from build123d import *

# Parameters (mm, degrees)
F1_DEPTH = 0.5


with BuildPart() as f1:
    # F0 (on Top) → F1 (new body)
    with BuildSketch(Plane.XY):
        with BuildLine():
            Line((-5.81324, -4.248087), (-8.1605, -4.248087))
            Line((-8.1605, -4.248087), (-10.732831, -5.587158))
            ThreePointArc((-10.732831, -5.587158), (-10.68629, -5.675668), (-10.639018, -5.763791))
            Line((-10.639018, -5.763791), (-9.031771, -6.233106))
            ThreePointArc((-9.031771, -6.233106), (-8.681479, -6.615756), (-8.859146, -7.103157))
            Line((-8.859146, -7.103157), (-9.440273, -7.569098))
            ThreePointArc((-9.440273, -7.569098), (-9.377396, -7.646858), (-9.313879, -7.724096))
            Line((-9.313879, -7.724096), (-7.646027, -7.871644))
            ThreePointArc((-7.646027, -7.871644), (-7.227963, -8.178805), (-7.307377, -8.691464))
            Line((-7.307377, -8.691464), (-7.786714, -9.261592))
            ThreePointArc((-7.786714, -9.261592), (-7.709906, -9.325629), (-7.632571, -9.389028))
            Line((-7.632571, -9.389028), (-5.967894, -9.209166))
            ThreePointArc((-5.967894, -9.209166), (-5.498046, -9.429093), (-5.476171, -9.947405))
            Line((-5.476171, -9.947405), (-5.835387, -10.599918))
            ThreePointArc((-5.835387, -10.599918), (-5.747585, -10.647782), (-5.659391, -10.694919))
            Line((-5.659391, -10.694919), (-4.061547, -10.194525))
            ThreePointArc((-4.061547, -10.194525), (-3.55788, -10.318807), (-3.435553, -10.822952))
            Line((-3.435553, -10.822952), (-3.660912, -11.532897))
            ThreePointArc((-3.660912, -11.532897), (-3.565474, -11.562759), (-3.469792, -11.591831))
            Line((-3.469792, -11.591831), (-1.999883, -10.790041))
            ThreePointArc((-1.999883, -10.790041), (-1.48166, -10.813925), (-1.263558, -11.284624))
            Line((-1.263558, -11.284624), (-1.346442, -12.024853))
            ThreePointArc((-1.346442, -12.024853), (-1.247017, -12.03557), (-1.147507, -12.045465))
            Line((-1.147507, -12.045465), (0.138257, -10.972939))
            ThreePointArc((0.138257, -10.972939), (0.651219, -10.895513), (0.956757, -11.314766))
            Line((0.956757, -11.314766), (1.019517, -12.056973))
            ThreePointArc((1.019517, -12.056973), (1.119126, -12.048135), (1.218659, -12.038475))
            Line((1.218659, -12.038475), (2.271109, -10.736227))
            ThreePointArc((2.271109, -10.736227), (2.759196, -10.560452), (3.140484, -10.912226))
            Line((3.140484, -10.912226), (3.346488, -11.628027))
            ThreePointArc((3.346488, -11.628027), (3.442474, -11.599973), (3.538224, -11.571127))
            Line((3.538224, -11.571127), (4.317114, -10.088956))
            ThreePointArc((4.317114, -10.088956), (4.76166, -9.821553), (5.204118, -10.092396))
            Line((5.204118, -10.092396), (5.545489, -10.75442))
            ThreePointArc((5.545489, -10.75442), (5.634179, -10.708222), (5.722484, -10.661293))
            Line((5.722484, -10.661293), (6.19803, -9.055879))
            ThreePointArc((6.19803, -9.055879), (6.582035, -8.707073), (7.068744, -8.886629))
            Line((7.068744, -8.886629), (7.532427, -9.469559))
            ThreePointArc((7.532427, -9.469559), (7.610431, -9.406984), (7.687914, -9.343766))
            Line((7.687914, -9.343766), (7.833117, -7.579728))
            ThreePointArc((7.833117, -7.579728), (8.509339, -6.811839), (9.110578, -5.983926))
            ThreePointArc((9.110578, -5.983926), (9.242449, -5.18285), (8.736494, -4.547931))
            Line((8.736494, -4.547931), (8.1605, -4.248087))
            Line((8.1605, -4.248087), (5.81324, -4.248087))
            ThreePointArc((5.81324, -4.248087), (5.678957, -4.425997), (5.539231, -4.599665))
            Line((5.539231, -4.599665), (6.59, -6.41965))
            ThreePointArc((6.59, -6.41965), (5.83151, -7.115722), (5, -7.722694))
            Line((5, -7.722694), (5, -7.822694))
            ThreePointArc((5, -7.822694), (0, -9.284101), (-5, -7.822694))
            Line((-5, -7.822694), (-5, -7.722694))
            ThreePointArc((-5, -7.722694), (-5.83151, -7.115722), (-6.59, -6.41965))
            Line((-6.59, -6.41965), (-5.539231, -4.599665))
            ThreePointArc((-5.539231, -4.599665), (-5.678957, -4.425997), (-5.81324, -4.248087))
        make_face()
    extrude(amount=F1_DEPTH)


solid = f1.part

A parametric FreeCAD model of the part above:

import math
import FreeCAD as App
import Part
import Sketcher

V = App.Vector
Q = App.Units.Quantity

doc = App.newDocument("Part")
params = doc.addObject("Spreadsheet::Sheet", "Params")
for row, (alias, value) in enumerate([
    ("sketch1_radius", "0.999999 mm"),
    ("sketch1_radius2", "0.5 mm"),
    ("sketch1_radius3", "0.500001 mm"),
    ("sketch1_radius4", "0.500001 mm"),
    ("sketch1_radius5", "0.5 mm"),
    ("pad1_length", "0.5 mm"),
], start=1):
    params.set(f"A{row}", alias)
    params.set(f"B{row}", "=" + value)
    params.setAlias(f"B{row}", alias)

body = doc.addObject("PartDesign::Body", "Body")

# Sketch on XY plane
sketch1 = body.newObject("Sketcher::SketchObject", "Sketch")
sketch1.AttachmentSupport = (doc.getObject("XY_Plane"), [""])
sketch1.MapMode = "FlatFace"
sketch1.addGeometry(Part.LineSegment(V(-5.81324, -4.248087, 0), V(-8.1605, -4.248087, 0)), False)
sketch1.addGeometry(Part.LineSegment(V(-8.1605, -4.248087, 0), V(-10.732831, -5.587158, 0)), False)
sketch1.addGeometry(Part.ArcOfCircle(Part.Circle(V(-0.008512, -0.004507, 0), V(0, 0, 1), 12.090368), math.radians(-152.500318), math.radians(-151.552514)), False)
sketch1.addGeometry(Part.LineSegment(V(-10.639018, -5.763791, 0), V(-9.031771, -6.233106, 0)), False)
sketch1.addGeometry(Part.ArcOfCircle(Part.Circle(V(-9.171919, -6.713063, 0), V(0, 0, 1), 0.5), math.radians(-51.277714), math.radians(73.722102)), False)
sketch1.addGeometry(Part.LineSegment(V(-8.859146, -7.103157, 0), V(-9.440273, -7.569098, 0)), False)
sketch1.addGeometry(Part.ArcOfCircle(Part.Circle(V(0.006509, 0.005301, 0), V(0, 0, 1), 12.108394), math.radians(-141.277476), math.radians(-140.331086)), False)
sketch1.addGeometry(Part.LineSegment(V(-9.313879, -7.724096, 0), V(-7.646027, -7.871644, 0)), False)
sketch1.addGeometry(Part.ArcOfCircle(Part.Circle(V(-7.690088, -8.369699, 0), V(0, 0, 1), 0.500001), math.radians(-40.055452), math.radians(84.944385)), False)
sketch1.addGeometry(Part.LineSegment(V(-7.307377, -8.691464, 0), V(-7.786714, -9.261592, 0)), False)
sketch1.addGeometry(Part.ArcOfCircle(Part.Circle(V(-0.009808, -0.011806, 0), V(0, 0, 1), 12.084652), math.radians(-130.055986), math.radians(-129.107734)), False)
sketch1.addGeometry(Part.LineSegment(V(-7.632571, -9.389028, 0), V(-5.967894, -9.209166, 0)), False)
sketch1.addGeometry(Part.ArcOfCircle(Part.Circle(V(-5.914185, -9.706273, 0), V(0, 0, 1), 0.500001), math.radians(-28.83328), math.radians(96.166513)), False)
sketch1.addGeometry(Part.LineSegment(V(-5.476171, -9.947405, 0), V(-5.835387, -10.599918, 0)), False)
sketch1.addGeometry(Part.ArcOfCircle(Part.Circle(V(0.003514, 0.006531, 0), V(0, 0, 1), 12.107416), math.radians(-118.832993), math.radians(-117.886527)), False)
sketch1.addGeometry(Part.LineSegment(V(-5.659391, -10.694919, 0), V(-4.061547, -10.194525, 0)), False)
sketch1.addGeometry(Part.ArcOfCircle(Part.Circle(V(-3.912118, -10.671674, 0), V(0, 0, 1), 0.5), math.radians(-17.611238), math.radians(107.388983)), False)
sketch1.addGeometry(Part.LineSegment(V(-3.435553, -10.822952, 0), V(-3.660912, -11.532897, 0)), False)
sketch1.addGeometry(Part.ArcOfCircle(Part.Circle(V(-0.001526, -0.005056, 0), V(0, 0, 1), 12.094719), math.radians(-107.611466), math.radians(-106.664003)), False)
sketch1.addGeometry(Part.LineSegment(V(-3.469792, -11.591831, 0), V(-1.999883, -10.790041, 0)), False)
sketch1.addGeometry(Part.ArcOfCircle(Part.Circle(V(-1.760451, -11.228984, 0), V(0, 0, 1), 0.499999), math.radians(-6.389103), math.radians(118.611285)), False)
sketch1.addGeometry(Part.LineSegment(V(-1.263558, -11.284624, 0), V(-1.346442, -12.024853, 0)), False)
sketch1.addGeometry(Part.ArcOfCircle(Part.Circle(V(0.000125, 0.001122, 0), V(0, 0, 1), 12.101129), math.radians(-96.388887), math.radians(-95.441927)), False)
sketch1.addGeometry(Part.LineSegment(V(-1.147507, -12.045465, 0), V(0.138257, -10.972939, 0)), False)
sketch1.addGeometry(Part.ArcOfCircle(Part.Circle(V(0.458535, -11.356894, 0), V(0, 0, 1), 0.5), math.radians(4.833284), math.radians(129.833335)), False)
sketch1.addGeometry(Part.LineSegment(V(0.956757, -11.314766, 0), V(1.019517, -12.056973, 0)), False)
sketch1.addGeometry(Part.ArcOfCircle(Part.Circle(V(-0.001293, 0.013844, 0), V(0, 0, 1), 12.113904), math.radians(-85.166089), math.radians(-84.220131)), False)
sketch1.addGeometry(Part.LineSegment(V(1.218659, -12.038475, 0), V(2.271109, -10.736227, 0)), False)
sketch1.addGeometry(Part.ArcOfCircle(Part.Circle(V(2.659987, -11.050511, 0), V(0, 0, 1), 0.5), math.radians(16.055595), math.radians(141.055472)), False)
sketch1.addGeometry(Part.LineSegment(V(3.140484, -10.912226, 0), V(3.346488, -11.628027, 0)), False)
sketch1.addGeometry(Part.ArcOfCircle(Part.Circle(V(-0.000185, 0.000758, 0), V(0, 0, 1), 12.10078), math.radians(-73.944597), math.radians(-72.997606)), False)
sketch1.addGeometry(Part.LineSegment(V(3.538224, -11.571127, 0), V(4.317114, -10.088956, 0)), False)
sketch1.addGeometry(Part.ArcOfCircle(Part.Circle(V(4.759721, -10.32155, 0), V(0, 0, 1), 0.5), math.radians(27.277912), math.radians(152.277678)), False)
sketch1.addGeometry(Part.LineSegment(V(5.204118, -10.092396, 0), V(5.545489, -10.75442, 0)), False)
sketch1.addGeometry(Part.ArcOfCircle(Part.Circle(V(-0.001856, 0.003494, 0), V(0, 0, 1), 12.103956), math.radians(-62.721993), math.radians(-61.775256)), False)
sketch1.addGeometry(Part.LineSegment(V(5.722484, -10.661293, 0), V(6.19803, -9.055879, 0)), False)
sketch1.addGeometry(Part.ArcOfCircle(Part.Circle(V(6.67744, -9.197887, 0), V(0, 0, 1), 0.5), math.radians(38.500032), math.radians(163.500011)), False)
sketch1.addGeometry(Part.LineSegment(V(7.068744, -8.886629, 0), V(7.532427, -9.469559, 0)), False)
sketch1.addGeometry(Part.ArcOfCircle(Part.Circle(V(0.010247, -0.012743, 0), V(0, 0, 1), 12.083648), math.radians(-51.500412), math.radians(-50.552081)), False)
sketch1.addGeometry(Part.LineSegment(V(7.687914, -9.343766, 0), V(7.833117, -7.579728, 0)), False)
sketch1.addGeometry(Part.ArcOfCircle(Part.Circle(V(0.000005, -0.000003, 0), V(0, 0, 1), 10.899994), math.radians(-44.058143), math.radians(-33.297342)), False)
sketch1.addGeometry(Part.ArcOfCircle(Part.Circle(V(8.274746, -5.434941, 0), V(0, 0, 1), 0.999999), math.radians(-33.297402), math.radians(62.500042)), False)
sketch1.addGeometry(Part.LineSegment(V(8.736494, -4.547931, 0), V(8.1605, -4.248087, 0)), False)
sketch1.addGeometry(Part.LineSegment(V(8.1605, -4.248087, 0), V(5.81324, -4.248087, 0)), False)
sketch1.addGeometry(Part.ArcOfCircle(Part.Circle(V(0.000201, -0.00015, 0), V(0, 0, 1), 7.199749), math.radians(-39.705652), math.radians(-36.157841)), False)
sketch1.addGeometry(Part.LineSegment(V(5.539231, -4.599665, 0), V(6.59, -6.41965, 0)), False)
sketch1.addGeometry(Part.ArcOfCircle(Part.Circle(V(0.000023, -0.000027, 0), V(0, 0, 1), 9.199965), math.radians(-57.079296), math.radians(-44.249785)), False)
sketch1.addGeometry(Part.LineSegment(V(5, -7.722694, 0), V(5, -7.822694, 0)), False)
sketch1.addGeometry(Part.ArcOfCircle(Part.Circle(V(0, 0.000003, 0), V(0, 0, 1), 9.284104), math.radians(-122.585319), math.radians(-57.414681)), False)
sketch1.addGeometry(Part.LineSegment(V(-5, -7.822694, 0), V(-5, -7.722694, 0)), False)
sketch1.addGeometry(Part.ArcOfCircle(Part.Circle(V(-0.000023, -0.000027, 0), V(0, 0, 1), 9.199965), math.radians(-135.750215), math.radians(-122.920704)), False)
sketch1.addGeometry(Part.LineSegment(V(-6.59, -6.41965, 0), V(-5.539231, -4.599665, 0)), False)
sketch1.addGeometry(Part.ArcOfCircle(Part.Circle(V(-0.000201, -0.00015, 0), V(0, 0, 1), 7.199749), math.radians(-143.842159), math.radians(-140.294348)), False)
sketch1.addConstraint(Sketcher.Constraint("Coincident", 0, 2, 1, 1))
sketch1.addConstraint(Sketcher.Constraint("Coincident", 1, 2, 2, 1))
sketch1.addConstraint(Sketcher.Constraint("Coincident", 2, 2, 3, 1))
sketch1.addConstraint(Sketcher.Constraint("Coincident", 3, 2, 4, 2))
sketch1.addConstraint(Sketcher.Constraint("Coincident", 4, 1, 5, 1))
sketch1.addConstraint(Sketcher.Constraint("Coincident", 5, 2, 6, 1))
sketch1.addConstraint(Sketcher.Constraint("Coincident", 6, 2, 7, 1))
sketch1.addConstraint(Sketcher.Constraint("Coincident", 7, 2, 8, 2))
sketch1.addConstraint(Sketcher.Constraint("Coincident", 8, 1, 9, 1))
sketch1.addConstraint(Sketcher.Constraint("Coincident", 9, 2, 10, 1))
sketch1.addConstraint(Sketcher.Constraint("Coincident", 10, 2, 11, 1))
sketch1.addConstraint(Sketcher.Constraint("Coincident", 11, 2, 12, 2))
sketch1.addConstraint(Sketcher.Constraint("Coincident", 12, 1, 13, 1))
sketch1.addConstraint(Sketcher.Constraint("Coincident", 13, 2, 14, 1))
sketch1.addConstraint(Sketcher.Constraint("Coincident", 14, 2, 15, 1))
sketch1.addConstraint(Sketcher.Constraint("Coincident", 15, 2, 16, 2))
sketch1.addConstraint(Sketcher.Constraint("Coincident", 16, 1, 17, 1))
sketch1.addConstraint(Sketcher.Constraint("Coincident", 17, 2, 18, 1))
sketch1.addConstraint(Sketcher.Constraint("Coincident", 18, 2, 19, 1))
sketch1.addConstraint(Sketcher.Constraint("Coincident", 19, 2, 20, 2))
sketch1.addConstraint(Sketcher.Constraint("Coincident", 20, 1, 21, 1))
sketch1.addConstraint(Sketcher.Constraint("Coincident", 21, 2, 22, 1))
sketch1.addConstraint(Sketcher.Constraint("Coincident", 22, 2, 23, 1))
sketch1.addConstraint(Sketcher.Constraint("Coincident", 23, 2, 24, 2))
sketch1.addConstraint(Sketcher.Constraint("Coincident", 24, 1, 25, 1))
sketch1.addConstraint(Sketcher.Constraint("Coincident", 25, 2, 26, 1))
sketch1.addConstraint(Sketcher.Constraint("Coincident", 26, 2, 27, 1))
sketch1.addConstraint(Sketcher.Constraint("Coincident", 27, 2, 28, 2))
sketch1.addConstraint(Sketcher.Constraint("Coincident", 28, 1, 29, 1))
sketch1.addConstraint(Sketcher.Constraint("Coincident", 29, 2, 30, 1))
sketch1.addConstraint(Sketcher.Constraint("Coincident", 30, 2, 31, 1))
sketch1.addConstraint(Sketcher.Constraint("Coincident", 31, 2, 32, 2))
sketch1.addConstraint(Sketcher.Constraint("Coincident", 32, 1, 33, 1))
sketch1.addConstraint(Sketcher.Constraint("Coincident", 33, 2, 34, 1))
sketch1.addConstraint(Sketcher.Constraint("Coincident", 34, 2, 35, 1))
sketch1.addConstraint(Sketcher.Constraint("Coincident", 35, 2, 36, 2))
sketch1.addConstraint(Sketcher.Constraint("Coincident", 36, 1, 37, 1))
sketch1.addConstraint(Sketcher.Constraint("Coincident", 37, 2, 38, 1))
sketch1.addConstraint(Sketcher.Constraint("Coincident", 38, 2, 39, 1))
sketch1.addConstraint(Sketcher.Constraint("Coincident", 39, 2, 40, 1))
sketch1.addConstraint(Sketcher.Constraint("Coincident", 40, 2, 41, 1))
sketch1.addConstraint(Sketcher.Constraint("Coincident", 41, 2, 42, 1))
sketch1.addConstraint(Sketcher.Constraint("Coincident", 42, 2, 43, 1))
sketch1.addConstraint(Sketcher.Constraint("Coincident", 43, 2, 44, 2))
sketch1.addConstraint(Sketcher.Constraint("Coincident", 44, 1, 45, 1))
sketch1.addConstraint(Sketcher.Constraint("Coincident", 45, 2, 46, 2))
sketch1.addConstraint(Sketcher.Constraint("Coincident", 46, 1, 47, 1))
sketch1.addConstraint(Sketcher.Constraint("Coincident", 47, 2, 48, 2))
sketch1.addConstraint(Sketcher.Constraint("Coincident", 48, 1, 49, 1))
sketch1.addConstraint(Sketcher.Constraint("Coincident", 49, 2, 50, 2))
sketch1.addConstraint(Sketcher.Constraint("Coincident", 50, 1, 51, 1))
sketch1.addConstraint(Sketcher.Constraint("Coincident", 51, 2, 52, 2))
sketch1.addConstraint(Sketcher.Constraint("Coincident", 52, 1, 0, 1))
sketch1.addConstraint(Sketcher.Constraint("Horizontal", 0))
sketch1.addConstraint(Sketcher.Constraint("Horizontal", 43))
sketch1.addConstraint(Sketcher.Constraint("Vertical", 47))
sketch1.addConstraint(Sketcher.Constraint("Vertical", 49))
sketch1.addConstraint(Sketcher.Constraint("Coincident", 40, 3, -1, 1))
sketch1.addConstraint(Sketcher.Constraint("Coincident", 48, 3, -1, 1))
sketch1.addConstraint(Sketcher.Constraint("Radius", 41, Q("0.999999 mm")))
sketch1.addConstraint(Sketcher.Constraint("Radius", 4, Q("0.5 mm")))
sketch1.addConstraint(Sketcher.Constraint("Radius", 8, Q("0.500001 mm")))
sketch1.addConstraint(Sketcher.Constraint("Radius", 12, Q("0.500001 mm")))
sketch1.addConstraint(Sketcher.Constraint("Radius", 16, Q("0.5 mm")))
sketch1.addConstraint(Sketcher.Constraint("Radius", 20, Q("0.499999 mm")))
sketch1.addConstraint(Sketcher.Constraint("Radius", 24, Q("0.5 mm")))
sketch1.addConstraint(Sketcher.Constraint("Radius", 28, Q("0.5 mm")))
sketch1.addConstraint(Sketcher.Constraint("Radius", 32, Q("0.5 mm")))
sketch1.addConstraint(Sketcher.Constraint("Radius", 36, Q("0.5 mm")))
sketch1.addConstraint(Sketcher.Constraint("DistanceY", 47, 2, 47, 1, Q("0.1 mm")))
sketch1.addConstraint(Sketcher.Constraint("DistanceY", 49, 1, 49, 2, Q("0.1 mm")))
sketch1.addConstraint(Sketcher.Constraint("DistanceX", -1, 1, 46, 1, Q("5 mm")))
sketch1.addConstraint(Sketcher.Constraint("DistanceX", 48, 1, -1, 1, Q("5 mm")))
sketch1.addConstraint(Sketcher.Constraint("Distance", 1, Q("2.9 mm")))
sketch1.addConstraint(Sketcher.Constraint("DistanceX", -1, 1, 45, 2, Q("6.59 mm")))
sketch1.addConstraint(Sketcher.Constraint("DistanceX", 50, 1, -1, 1, Q("6.59 mm")))
sketch1.addConstraint(Sketcher.Constraint("Radius", 2, Q("12.090368 mm")))
sketch1.addConstraint(Sketcher.Constraint("Radius", 10, Q("12.084652 mm")))
sketch1.addConstraint(Sketcher.Constraint("Radius", 18, Q("12.094719 mm")))
sketch1.addConstraint(Sketcher.Constraint("Radius", 22, Q("12.101129 mm")))
sketch1.addConstraint(Sketcher.Constraint("Radius", 30, Q("12.10078 mm")))
sketch1.addConstraint(Sketcher.Constraint("Radius", 38, Q("12.083648 mm")))
sketch1.addConstraint(Sketcher.Constraint("Radius", 44, Q("7.199749 mm")))
sketch1.addConstraint(Sketcher.Constraint("Radius", 52, Q("7.199749 mm")))
sketch1.addConstraint(Sketcher.Constraint("Radius", 6, Q("12.108394 mm")))
sketch1.addConstraint(Sketcher.Constraint("Radius", 14, Q("12.107416 mm")))
sketch1.addConstraint(Sketcher.Constraint("Radius", 26, Q("12.113904 mm")))
sketch1.addConstraint(Sketcher.Constraint("Radius", 34, Q("12.103956 mm")))
sketch1.addConstraint(Sketcher.Constraint("Radius", 40, Q("10.899994 mm")))
sketch1.addConstraint(Sketcher.Constraint("Radius", 46, Q("9.199965 mm")))
sketch1.addConstraint(Sketcher.Constraint("Radius", 48, Q("9.284104 mm")))
sketch1.addConstraint(Sketcher.Constraint("Radius", 50, Q("9.199965 mm")))
sketch1.addConstraint(Sketcher.Constraint("DistanceX", 0, 2, 0, 1, Q("2.34726 mm")))
sketch1.addConstraint(Sketcher.Constraint("DistanceX", 43, 2, 43, 1, Q("2.34726 mm")))
sketch1.addConstraint(Sketcher.Constraint("DistanceY", -1, 1, 6, 3, Q("0.005301 mm")))
sketch1.addConstraint(Sketcher.Constraint("DistanceY", 8, 3, -1, 1, Q("8.369699 mm")))
sketch1.addConstraint(Sketcher.Constraint("DistanceX", -1, 1, 44, 3, Q("0.000201 mm")))
sketch1.addConstraint(Sketcher.Constraint("DistanceX", 52, 3, -1, 1, Q("0.000201 mm")))
sketch1.addConstraint(Sketcher.Constraint("DistanceX", 0, 2, -1, 1, Q("8.1605 mm")))
sketch1.addConstraint(Sketcher.Constraint("DistanceY", 5, 2, -1, 1, Q("7.569098 mm")))
sketch1.addConstraint(Sketcher.Constraint("DistanceX", -1, 1, 42, 2, Q("8.1605 mm")))
sketch1.addConstraint(Sketcher.Constraint("DistanceX", 4, 3, -1, 1, Q("9.171919 mm")))
sketch1.addConstraint(Sketcher.Constraint("DistanceX", -1, 1, 6, 3, Q("0.006509 mm")))
sketch1.addConstraint(Sketcher.Constraint("DistanceX", 8, 3, -1, 1, Q("7.690088 mm")))
sketch1.addConstraint(Sketcher.Constraint("DistanceY", -1, 1, 14, 3, Q("0.006531 mm")))
sketch1.addConstraint(Sketcher.Constraint("DistanceX", 16, 3, -1, 1, Q("3.912118 mm")))
sketch1.addConstraint(Sketcher.Constraint("DistanceX", 20, 3, -1, 1, Q("1.760451 mm")))
sketch1.addConstraint(Sketcher.Constraint("DistanceY", -1, 1, 22, 3, Q("0.001122 mm")))
sketch1.addConstraint(Sketcher.Constraint("DistanceY", 28, 3, -1, 1, Q("11.050511 mm")))
sketch1.addConstraint(Sketcher.Constraint("DistanceY", -1, 1, 30, 3, Q("0.000758 mm")))
sketch1.addConstraint(Sketcher.Constraint("DistanceX", -1, 1, 32, 3, Q("4.759721 mm")))
sketch1.addConstraint(Sketcher.Constraint("DistanceY", 32, 3, -1, 1, Q("10.32155 mm")))
sketch1.addConstraint(Sketcher.Constraint("DistanceX", -1, 1, 36, 3, Q("6.67744 mm")))
sketch1.addConstraint(Sketcher.Constraint("DistanceY", 41, 3, -1, 1, Q("5.434941 mm")))
sketch1.addConstraint(Sketcher.Constraint("DistanceY", 44, 3, -1, 1, Q("0.00015 mm")))
sketch1.addConstraint(Sketcher.Constraint("DistanceY", 52, 3, -1, 1, Q("0.00015 mm")))
sketch1.addConstraint(Sketcher.Constraint("DistanceX", 1, 2, -1, 1, Q("10.732831 mm")))
sketch1.addConstraint(Sketcher.Constraint("DistanceY", 2, 2, -1, 1, Q("5.763791 mm")))
sketch1.addConstraint(Sketcher.Constraint("DistanceX", 3, 2, -1, 1, Q("9.031771 mm")))
sketch1.addConstraint(Sketcher.Constraint("DistanceX", 6, 2, -1, 1, Q("9.313879 mm")))
sketch1.addConstraint(Sketcher.Constraint("DistanceX", 10, 2, -1, 1, Q("7.632571 mm")))
sketch1.addConstraint(Sketcher.Constraint("DistanceX", 12, 1, -1, 1, Q("5.476171 mm")))
sketch1.addConstraint(Sketcher.Constraint("DistanceY", 13, 2, -1, 1, Q("10.599918 mm")))
sketch1.addConstraint(Sketcher.Constraint("DistanceX", 14, 2, -1, 1, Q("5.659391 mm")))
sketch1.addConstraint(Sketcher.Constraint("DistanceY", 14, 2, -1, 1, Q("10.694919 mm")))
sketch1.addConstraint(Sketcher.Constraint("DistanceX", 18, 2, -1, 1, Q("3.469792 mm")))
sketch1.addConstraint(Sketcher.Constraint("DistanceY", 18, 2, -1, 1, Q("11.591831 mm")))
sketch1.addConstraint(Sketcher.Constraint("DistanceY", 19, 2, -1, 1, Q("10.790041 mm")))
sketch1.addConstraint(Sketcher.Constraint("DistanceX", 21, 2, -1, 1, Q("1.346442 mm")))
sketch1.addConstraint(Sketcher.Constraint("DistanceY", 23, 2, -1, 1, Q("10.972939 mm")))
sketch1.addConstraint(Sketcher.Constraint("DistanceX", -1, 1, 26, 2, Q("1.218659 mm")))
sketch1.addConstraint(Sketcher.Constraint("DistanceX", -1, 1, 27, 2, Q("2.271109 mm")))
sketch1.addConstraint(Sketcher.Constraint("DistanceX", -1, 1, 33, 2, Q("5.545489 mm")))
sketch1.addConstraint(Sketcher.Constraint("DistanceY", 33, 2, -1, 1, Q("10.75442 mm")))
sketch1.addConstraint(Sketcher.Constraint("DistanceX", -1, 1, 35, 2, Q("6.19803 mm")))
sketch1.addConstraint(Sketcher.Constraint("DistanceY", 35, 2, -1, 1, Q("9.055879 mm")))
sketch1.addConstraint(Sketcher.Constraint("DistanceY", 36, 1, -1, 1, Q("8.886629 mm")))
sketch1.addConstraint(Sketcher.Constraint("DistanceY", 37, 2, -1, 1, Q("9.469559 mm")))
sketch1.addConstraint(Sketcher.Constraint("DistanceY", 39, 2, -1, 1, Q("7.579728 mm")))
sketch1.addConstraint(Sketcher.Constraint("DistanceX", -1, 1, 40, 2, Q("9.110578 mm")))
sketch1.addConstraint(Sketcher.Constraint("DistanceY", 41, 2, -1, 1, Q("4.547931 mm")))
sketch1.addConstraint(Sketcher.Constraint("DistanceX", -1, 1, 44, 1, Q("5.539231 mm")))
sketch1.addConstraint(Sketcher.Constraint("DistanceY", 45, 2, -1, 1, Q("6.41965 mm")))
sketch1.addConstraint(Sketcher.Constraint("DistanceY", 50, 1, -1, 1, Q("6.41965 mm")))
sketch1.addConstraint(Sketcher.Constraint("DistanceX", 51, 2, -1, 1, Q("5.539231 mm")))
sketch1.addConstraint(Sketcher.Constraint("Distance", 3, Q("1.674365 mm")))
sketch1.addConstraint(Sketcher.Constraint("Distance", 5, Q("0.744855 mm")))
sketch1.addConstraint(Sketcher.Constraint("Distance", 7, Q("1.674366 mm")))
sketch1.addConstraint(Sketcher.Constraint("Distance", 9, Q("0.744856 mm")))
sketch1.addConstraint(Sketcher.Constraint("Distance", 11, Q("1.674366 mm")))
sketch1.addConstraint(Sketcher.Constraint("Distance", 13, Q("0.744855 mm")))
sketch1.addConstraint(Sketcher.Constraint("Distance", 15, Q("1.674365 mm")))
sketch1.addConstraint(Sketcher.Constraint("Distance", 17, Q("0.744855 mm")))
sketch1.addConstraint(Sketcher.Constraint("Distance", 19, Q("1.674365 mm")))
sketch1.addConstraint(Sketcher.Constraint("Distance", 21, Q("0.744855 mm")))
sketch1.addConstraint(Sketcher.Constraint("Distance", 23, Q("1.674366 mm")))
sketch1.addConstraint(Sketcher.Constraint("Distance", 25, Q("0.744856 mm")))
sketch1.addConstraint(Sketcher.Constraint("Distance", 27, Q("1.674366 mm")))
sketch1.addConstraint(Sketcher.Constraint("Distance", 29, Q("0.744855 mm")))
sketch1.addConstraint(Sketcher.Constraint("Distance", 31, Q("1.674366 mm")))
sketch1.addConstraint(Sketcher.Constraint("Distance", 33, Q("0.744856 mm")))
sketch1.addConstraint(Sketcher.Constraint("Distance", 35, Q("1.674365 mm")))
sketch1.addConstraint(Sketcher.Constraint("Distance", 37, Q("0.744855 mm")))
sketch1.addConstraint(Sketcher.Constraint("Distance", 39, Q("1.770004 mm")))
sketch1.addConstraint(Sketcher.Constraint("DistanceX", 2, 3, -1, 1, Q("0.008512 mm")))
sketch1.addConstraint(Sketcher.Constraint("DistanceX", 10, 3, -1, 1, Q("0.009808 mm")))
sketch1.addConstraint(Sketcher.Constraint("DistanceY", 10, 3, -1, 1, Q("0.011806 mm")))
sketch1.addConstraint(Sketcher.Constraint("DistanceX", 12, 3, -1, 1, Q("5.914185 mm")))
sketch1.addConstraint(Sketcher.Constraint("DistanceY", 16, 3, -1, 1, Q("10.671674 mm")))
sketch1.addConstraint(Sketcher.Constraint("DistanceX", 18, 3, -1, 1, Q("0.001526 mm")))
sketch1.addConstraint(Sketcher.Constraint("DistanceX", -1, 1, 22, 3, Q("0.000125 mm")))
sketch1.addConstraint(Sketcher.Constraint("DistanceX", -1, 1, 24, 3, Q("0.458535 mm")))
sketch1.addConstraint(Sketcher.Constraint("DistanceY", 24, 3, -1, 1, Q("11.356894 mm")))
sketch1.addConstraint(Sketcher.Constraint("DistanceX", 26, 3, -1, 1, Q("0.001293 mm")))
sketch1.addConstraint(Sketcher.Constraint("DistanceY", -1, 1, 26, 3, Q("0.013844 mm")))
sketch1.addConstraint(Sketcher.Constraint("DistanceX", 30, 3, -1, 1, Q("0.000185 mm")))
sketch1.addConstraint(Sketcher.Constraint("DistanceX", 34, 3, -1, 1, Q("0.001856 mm")))
sketch1.addConstraint(Sketcher.Constraint("DistanceX", -1, 1, 38, 3, Q("0.010247 mm")))
sketch1.addConstraint(Sketcher.Constraint("DistanceX", 9, 2, -1, 1, Q("7.786714 mm")))
sketch1.addConstraint(Sketcher.Constraint("DistanceX", 17, 2, -1, 1, Q("3.660912 mm")))
sketch1.addConstraint(Sketcher.Constraint("DistanceX", -1, 1, 25, 2, Q("1.019517 mm")))
sketch1.addConstraint(Sketcher.Constraint("DistanceX", -1, 1, 29, 2, Q("3.346488 mm")))
sketch1.addConstraint(Sketcher.Constraint("DistanceX", -1, 1, 30, 2, Q("3.538224 mm")))
sketch1.setExpression("Constraints[59]", "Params.sketch1_radius")
sketch1.setExpression("Constraints[60]", "Params.sketch1_radius2")
sketch1.setExpression("Constraints[61]", "Params.sketch1_radius3")
sketch1.setExpression("Constraints[62]", "Params.sketch1_radius4")
sketch1.setExpression("Constraints[63]", "Params.sketch1_radius5")
pad1 = body.newObject("PartDesign::Pad", "Pad")
pad1.Profile = sketch1
pad1.setExpression("Length", "Params.pad1_length")

doc.recompute()
